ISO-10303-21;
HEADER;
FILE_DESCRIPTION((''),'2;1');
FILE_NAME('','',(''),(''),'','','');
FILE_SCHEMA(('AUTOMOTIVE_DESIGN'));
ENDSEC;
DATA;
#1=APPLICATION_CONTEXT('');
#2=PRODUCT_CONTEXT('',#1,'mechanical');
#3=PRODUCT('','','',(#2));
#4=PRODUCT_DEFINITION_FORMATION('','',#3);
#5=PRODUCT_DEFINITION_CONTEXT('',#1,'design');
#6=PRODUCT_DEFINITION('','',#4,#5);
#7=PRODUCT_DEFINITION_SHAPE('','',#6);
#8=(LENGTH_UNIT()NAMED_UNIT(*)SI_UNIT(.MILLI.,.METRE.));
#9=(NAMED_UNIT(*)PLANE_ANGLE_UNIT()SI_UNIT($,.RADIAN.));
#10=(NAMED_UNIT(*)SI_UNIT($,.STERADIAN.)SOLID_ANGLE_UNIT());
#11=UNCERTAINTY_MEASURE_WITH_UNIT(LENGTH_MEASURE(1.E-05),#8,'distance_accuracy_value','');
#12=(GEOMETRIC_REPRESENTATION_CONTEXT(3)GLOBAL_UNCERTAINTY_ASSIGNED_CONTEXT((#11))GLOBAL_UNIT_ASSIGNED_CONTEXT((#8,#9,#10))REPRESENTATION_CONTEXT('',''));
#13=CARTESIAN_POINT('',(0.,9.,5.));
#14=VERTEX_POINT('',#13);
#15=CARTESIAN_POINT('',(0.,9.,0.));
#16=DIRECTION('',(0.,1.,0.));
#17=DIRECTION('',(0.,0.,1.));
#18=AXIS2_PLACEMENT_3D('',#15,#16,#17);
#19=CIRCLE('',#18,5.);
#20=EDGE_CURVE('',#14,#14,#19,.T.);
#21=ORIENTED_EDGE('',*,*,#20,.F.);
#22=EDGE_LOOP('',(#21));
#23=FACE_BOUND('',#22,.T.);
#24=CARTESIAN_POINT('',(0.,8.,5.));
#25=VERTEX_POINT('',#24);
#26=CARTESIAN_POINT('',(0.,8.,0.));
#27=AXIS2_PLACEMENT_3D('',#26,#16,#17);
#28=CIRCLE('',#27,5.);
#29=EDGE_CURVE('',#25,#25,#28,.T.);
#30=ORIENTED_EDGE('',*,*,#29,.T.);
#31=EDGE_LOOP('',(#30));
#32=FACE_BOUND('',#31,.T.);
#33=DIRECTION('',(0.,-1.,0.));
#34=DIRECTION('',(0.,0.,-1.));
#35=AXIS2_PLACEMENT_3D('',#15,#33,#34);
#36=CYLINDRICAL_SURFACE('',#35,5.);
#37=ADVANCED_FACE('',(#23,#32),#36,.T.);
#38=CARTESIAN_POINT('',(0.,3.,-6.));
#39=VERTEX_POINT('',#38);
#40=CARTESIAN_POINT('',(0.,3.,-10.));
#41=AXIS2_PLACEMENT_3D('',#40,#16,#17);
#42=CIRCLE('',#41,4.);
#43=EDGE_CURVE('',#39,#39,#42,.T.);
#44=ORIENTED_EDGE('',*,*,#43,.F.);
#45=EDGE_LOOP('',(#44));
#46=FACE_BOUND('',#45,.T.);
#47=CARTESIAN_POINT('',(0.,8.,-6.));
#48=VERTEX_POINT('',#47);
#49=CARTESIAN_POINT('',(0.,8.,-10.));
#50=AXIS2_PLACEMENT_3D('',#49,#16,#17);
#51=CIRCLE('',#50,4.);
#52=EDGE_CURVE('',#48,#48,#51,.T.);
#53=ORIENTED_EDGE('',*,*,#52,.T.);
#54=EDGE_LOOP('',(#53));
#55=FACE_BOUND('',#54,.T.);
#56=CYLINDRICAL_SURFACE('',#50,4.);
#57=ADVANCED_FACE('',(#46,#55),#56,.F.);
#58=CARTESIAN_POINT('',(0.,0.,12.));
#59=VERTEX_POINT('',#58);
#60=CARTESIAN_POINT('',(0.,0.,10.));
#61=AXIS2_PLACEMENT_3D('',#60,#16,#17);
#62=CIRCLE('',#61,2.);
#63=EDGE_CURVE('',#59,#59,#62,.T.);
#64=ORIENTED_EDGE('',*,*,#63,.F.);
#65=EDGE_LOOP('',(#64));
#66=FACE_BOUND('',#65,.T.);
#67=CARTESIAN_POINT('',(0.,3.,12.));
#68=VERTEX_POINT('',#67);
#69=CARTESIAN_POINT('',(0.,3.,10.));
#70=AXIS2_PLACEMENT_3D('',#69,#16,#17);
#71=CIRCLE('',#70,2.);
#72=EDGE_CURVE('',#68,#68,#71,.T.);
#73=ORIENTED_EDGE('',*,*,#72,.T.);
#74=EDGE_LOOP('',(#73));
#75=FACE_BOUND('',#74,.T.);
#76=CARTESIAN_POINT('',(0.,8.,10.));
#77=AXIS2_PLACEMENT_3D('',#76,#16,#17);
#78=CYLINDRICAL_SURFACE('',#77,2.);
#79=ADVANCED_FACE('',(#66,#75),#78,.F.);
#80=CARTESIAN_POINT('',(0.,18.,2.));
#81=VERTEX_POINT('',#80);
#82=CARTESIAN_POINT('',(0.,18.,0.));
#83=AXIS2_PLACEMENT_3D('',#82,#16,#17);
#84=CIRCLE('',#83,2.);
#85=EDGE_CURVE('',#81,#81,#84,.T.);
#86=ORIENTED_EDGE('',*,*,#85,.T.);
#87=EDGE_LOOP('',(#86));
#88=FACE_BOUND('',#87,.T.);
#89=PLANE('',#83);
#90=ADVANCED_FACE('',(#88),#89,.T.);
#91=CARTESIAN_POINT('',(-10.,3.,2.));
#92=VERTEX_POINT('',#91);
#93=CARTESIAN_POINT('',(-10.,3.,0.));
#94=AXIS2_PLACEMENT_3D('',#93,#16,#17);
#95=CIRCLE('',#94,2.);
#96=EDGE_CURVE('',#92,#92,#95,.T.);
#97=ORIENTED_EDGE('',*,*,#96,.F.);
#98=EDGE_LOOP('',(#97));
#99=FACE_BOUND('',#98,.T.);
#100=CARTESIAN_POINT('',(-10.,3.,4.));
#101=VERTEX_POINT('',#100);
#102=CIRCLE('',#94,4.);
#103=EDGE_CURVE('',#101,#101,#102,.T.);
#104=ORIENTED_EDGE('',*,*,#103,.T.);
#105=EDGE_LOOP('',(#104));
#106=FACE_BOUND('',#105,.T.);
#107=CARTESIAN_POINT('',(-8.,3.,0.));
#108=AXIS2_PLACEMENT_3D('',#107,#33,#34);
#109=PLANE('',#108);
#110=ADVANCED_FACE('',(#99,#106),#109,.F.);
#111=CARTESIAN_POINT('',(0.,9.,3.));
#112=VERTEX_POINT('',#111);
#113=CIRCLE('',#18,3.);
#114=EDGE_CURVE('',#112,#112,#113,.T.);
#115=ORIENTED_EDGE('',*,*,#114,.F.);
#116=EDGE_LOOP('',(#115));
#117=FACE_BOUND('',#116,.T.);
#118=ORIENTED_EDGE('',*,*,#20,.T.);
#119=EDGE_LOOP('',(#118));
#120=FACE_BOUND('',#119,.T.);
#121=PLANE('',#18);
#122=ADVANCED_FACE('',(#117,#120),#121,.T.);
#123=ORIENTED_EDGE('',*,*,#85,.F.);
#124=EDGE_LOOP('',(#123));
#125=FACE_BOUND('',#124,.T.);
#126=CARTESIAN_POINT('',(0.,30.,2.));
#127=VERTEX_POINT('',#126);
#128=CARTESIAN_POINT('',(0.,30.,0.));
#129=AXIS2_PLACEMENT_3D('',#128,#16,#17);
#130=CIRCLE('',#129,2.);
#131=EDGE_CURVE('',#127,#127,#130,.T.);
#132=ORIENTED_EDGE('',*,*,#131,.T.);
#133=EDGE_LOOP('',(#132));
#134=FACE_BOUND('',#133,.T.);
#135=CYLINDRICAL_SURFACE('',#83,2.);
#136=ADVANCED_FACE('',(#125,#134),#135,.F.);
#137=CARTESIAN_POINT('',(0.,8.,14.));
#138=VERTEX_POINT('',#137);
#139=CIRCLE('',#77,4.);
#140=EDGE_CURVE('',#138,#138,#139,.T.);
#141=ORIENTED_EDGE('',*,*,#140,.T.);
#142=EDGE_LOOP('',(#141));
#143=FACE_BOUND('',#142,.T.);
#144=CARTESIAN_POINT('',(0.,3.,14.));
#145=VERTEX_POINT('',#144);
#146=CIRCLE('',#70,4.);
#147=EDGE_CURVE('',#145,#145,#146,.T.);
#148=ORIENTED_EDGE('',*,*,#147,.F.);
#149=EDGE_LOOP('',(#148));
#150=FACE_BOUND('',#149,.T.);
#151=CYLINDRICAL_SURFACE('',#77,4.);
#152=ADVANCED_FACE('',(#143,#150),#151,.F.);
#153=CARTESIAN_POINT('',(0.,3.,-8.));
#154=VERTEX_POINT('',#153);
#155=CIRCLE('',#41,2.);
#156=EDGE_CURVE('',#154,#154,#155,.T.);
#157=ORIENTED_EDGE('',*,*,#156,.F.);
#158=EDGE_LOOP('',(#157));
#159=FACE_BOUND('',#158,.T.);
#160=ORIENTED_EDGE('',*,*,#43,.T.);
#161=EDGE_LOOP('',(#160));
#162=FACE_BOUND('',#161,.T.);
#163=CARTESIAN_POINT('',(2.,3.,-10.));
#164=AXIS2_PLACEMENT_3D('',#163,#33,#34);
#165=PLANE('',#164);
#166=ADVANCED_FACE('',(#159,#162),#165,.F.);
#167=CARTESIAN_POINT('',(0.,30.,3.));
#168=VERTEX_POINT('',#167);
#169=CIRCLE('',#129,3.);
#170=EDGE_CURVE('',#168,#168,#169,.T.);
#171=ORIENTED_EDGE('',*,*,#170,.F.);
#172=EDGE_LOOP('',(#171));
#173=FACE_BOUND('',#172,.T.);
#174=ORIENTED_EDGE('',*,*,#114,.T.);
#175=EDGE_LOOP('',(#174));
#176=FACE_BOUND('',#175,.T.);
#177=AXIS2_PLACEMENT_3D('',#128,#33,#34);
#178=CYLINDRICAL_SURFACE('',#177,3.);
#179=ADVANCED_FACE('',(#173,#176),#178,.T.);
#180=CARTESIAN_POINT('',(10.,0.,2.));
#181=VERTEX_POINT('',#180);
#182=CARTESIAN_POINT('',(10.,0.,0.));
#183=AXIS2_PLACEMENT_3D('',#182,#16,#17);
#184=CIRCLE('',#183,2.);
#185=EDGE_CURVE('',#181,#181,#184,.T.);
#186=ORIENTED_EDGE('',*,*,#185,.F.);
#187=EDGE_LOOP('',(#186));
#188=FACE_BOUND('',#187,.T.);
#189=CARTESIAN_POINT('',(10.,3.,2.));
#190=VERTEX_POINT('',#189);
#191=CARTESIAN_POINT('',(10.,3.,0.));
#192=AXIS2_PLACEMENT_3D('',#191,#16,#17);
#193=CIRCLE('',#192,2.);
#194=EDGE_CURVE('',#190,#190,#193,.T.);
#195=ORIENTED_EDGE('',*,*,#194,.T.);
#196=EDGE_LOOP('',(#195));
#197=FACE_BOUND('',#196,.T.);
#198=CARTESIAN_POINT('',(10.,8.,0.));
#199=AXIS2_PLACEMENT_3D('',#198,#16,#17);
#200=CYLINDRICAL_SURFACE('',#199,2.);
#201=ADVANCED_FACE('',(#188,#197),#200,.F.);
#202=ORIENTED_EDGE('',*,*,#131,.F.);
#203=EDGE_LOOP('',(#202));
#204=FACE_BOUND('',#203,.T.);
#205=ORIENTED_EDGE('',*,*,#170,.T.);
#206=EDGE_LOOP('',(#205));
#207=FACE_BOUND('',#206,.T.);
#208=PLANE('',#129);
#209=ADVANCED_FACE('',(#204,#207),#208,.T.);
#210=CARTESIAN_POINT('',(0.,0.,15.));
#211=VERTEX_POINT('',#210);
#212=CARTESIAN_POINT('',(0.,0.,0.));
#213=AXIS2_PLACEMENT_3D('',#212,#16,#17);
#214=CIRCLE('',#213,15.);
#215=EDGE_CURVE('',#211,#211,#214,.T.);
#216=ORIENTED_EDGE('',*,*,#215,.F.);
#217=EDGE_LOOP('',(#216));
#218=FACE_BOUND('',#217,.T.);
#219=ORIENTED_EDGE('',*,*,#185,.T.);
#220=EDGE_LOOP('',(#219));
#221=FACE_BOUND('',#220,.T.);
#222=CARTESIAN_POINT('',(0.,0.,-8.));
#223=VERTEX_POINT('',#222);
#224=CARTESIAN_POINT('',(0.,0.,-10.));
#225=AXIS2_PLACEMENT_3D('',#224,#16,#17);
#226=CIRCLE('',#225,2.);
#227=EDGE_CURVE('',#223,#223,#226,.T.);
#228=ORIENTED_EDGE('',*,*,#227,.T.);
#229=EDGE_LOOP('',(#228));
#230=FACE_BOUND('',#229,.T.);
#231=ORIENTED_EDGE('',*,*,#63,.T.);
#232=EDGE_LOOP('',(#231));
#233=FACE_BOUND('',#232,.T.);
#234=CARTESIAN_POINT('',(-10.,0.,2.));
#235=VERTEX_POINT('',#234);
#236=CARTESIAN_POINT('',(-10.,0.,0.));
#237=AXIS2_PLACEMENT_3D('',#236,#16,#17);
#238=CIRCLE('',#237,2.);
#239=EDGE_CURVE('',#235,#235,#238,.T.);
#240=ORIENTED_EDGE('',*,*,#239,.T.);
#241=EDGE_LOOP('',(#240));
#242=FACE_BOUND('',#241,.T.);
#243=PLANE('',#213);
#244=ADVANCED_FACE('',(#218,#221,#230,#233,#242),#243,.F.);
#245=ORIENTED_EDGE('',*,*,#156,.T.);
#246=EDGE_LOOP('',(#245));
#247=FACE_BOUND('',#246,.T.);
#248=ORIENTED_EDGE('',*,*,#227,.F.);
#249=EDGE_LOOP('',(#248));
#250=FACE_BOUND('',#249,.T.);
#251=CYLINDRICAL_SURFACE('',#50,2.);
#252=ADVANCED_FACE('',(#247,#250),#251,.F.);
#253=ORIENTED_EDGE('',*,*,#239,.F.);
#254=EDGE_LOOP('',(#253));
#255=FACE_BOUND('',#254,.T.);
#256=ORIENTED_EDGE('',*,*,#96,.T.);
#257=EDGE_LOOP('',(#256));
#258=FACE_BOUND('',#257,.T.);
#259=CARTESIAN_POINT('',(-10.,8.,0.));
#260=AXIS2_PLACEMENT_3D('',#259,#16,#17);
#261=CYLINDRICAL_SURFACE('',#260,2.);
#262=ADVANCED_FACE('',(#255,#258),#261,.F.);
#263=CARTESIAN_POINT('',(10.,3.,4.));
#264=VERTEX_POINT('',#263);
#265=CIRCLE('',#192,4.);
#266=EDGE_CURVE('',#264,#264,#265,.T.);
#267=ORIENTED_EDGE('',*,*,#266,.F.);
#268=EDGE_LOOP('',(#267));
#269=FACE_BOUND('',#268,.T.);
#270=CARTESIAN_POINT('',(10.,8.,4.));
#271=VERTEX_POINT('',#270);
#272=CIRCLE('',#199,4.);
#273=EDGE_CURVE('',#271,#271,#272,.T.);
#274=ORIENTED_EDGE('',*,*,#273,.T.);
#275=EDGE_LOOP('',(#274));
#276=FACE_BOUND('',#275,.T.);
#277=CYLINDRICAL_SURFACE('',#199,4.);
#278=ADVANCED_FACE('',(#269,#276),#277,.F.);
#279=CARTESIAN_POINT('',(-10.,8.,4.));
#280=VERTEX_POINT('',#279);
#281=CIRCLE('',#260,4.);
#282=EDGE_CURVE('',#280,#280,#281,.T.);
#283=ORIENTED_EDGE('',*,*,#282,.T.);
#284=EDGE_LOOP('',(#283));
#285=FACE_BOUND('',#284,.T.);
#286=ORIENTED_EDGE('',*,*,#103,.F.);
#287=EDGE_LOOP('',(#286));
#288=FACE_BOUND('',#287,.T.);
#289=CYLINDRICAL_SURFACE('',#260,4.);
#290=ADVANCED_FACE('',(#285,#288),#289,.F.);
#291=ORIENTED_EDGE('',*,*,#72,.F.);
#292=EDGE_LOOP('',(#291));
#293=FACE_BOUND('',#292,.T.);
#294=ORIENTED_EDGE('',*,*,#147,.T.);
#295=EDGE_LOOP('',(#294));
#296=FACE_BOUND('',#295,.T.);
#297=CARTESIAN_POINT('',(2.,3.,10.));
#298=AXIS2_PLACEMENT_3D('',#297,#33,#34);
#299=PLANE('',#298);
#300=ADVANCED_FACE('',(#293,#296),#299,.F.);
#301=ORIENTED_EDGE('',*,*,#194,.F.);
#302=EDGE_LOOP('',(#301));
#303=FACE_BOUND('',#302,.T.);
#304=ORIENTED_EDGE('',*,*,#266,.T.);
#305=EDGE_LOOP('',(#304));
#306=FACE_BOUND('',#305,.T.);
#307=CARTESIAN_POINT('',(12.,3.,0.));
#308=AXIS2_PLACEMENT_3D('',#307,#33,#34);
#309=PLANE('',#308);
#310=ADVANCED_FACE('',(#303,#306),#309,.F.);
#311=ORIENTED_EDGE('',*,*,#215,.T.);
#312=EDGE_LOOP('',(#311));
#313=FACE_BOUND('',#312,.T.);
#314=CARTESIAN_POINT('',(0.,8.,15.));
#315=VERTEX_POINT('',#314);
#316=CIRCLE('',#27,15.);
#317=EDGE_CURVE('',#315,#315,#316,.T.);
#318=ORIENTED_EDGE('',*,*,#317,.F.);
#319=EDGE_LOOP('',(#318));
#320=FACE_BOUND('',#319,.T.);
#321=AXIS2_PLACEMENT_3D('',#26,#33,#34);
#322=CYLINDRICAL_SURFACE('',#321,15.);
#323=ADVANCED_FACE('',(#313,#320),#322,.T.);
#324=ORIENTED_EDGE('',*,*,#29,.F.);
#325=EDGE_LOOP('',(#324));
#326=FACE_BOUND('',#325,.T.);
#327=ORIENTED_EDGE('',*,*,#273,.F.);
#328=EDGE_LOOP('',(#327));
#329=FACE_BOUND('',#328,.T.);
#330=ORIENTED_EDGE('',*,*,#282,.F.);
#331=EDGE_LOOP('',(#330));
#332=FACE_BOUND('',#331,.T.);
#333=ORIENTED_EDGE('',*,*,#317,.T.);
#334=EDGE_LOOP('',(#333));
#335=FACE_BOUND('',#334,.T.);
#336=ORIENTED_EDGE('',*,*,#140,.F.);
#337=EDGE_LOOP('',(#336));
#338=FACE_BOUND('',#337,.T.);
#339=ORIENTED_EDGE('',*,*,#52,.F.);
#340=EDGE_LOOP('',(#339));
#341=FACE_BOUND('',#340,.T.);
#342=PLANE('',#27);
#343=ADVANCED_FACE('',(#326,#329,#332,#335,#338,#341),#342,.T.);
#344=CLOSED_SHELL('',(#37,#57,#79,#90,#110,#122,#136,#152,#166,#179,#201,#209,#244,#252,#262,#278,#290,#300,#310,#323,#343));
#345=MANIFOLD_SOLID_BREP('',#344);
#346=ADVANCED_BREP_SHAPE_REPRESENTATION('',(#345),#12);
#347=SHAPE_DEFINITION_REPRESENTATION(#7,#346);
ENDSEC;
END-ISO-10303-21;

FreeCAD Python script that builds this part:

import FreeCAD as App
import Part
import Sketcher

V = App.Vector
Q = App.Units.Quantity

doc = App.newDocument("Part")
body = doc.addObject("PartDesign::Body", "Body")

# Sketch on XZ plane
sketch1 = body.newObject("Sketcher::SketchObject", "Sketch")
sketch1.AttachmentSupport = (doc.getObject("XZ_Plane"), [""])
sketch1.MapMode = "FlatFace"
sketch1.addGeometry(Part.Circle(V(0, 0, 0), V(0, 0, 1), 15), False)
sketch1.addConstraint(Sketcher.Constraint("Coincident", 0, 3, -1, 1))
sketch1.addConstraint(Sketcher.Constraint("Diameter", 0, Q("30 mm")))
pad1 = body.newObject("PartDesign::Pad", "Pad")
pad1.Profile = sketch1
pad1.Length = 8
pad1.Reversed = True

# Sketch on XZ plane
sketch2 = body.newObject("Sketcher::SketchObject", "Sketch001")
sketch2.AttachmentSupport = (doc.getObject("XZ_Plane"), [""])
sketch2.MapMode = "FlatFace"
sketch2.AttachmentOffset = App.Placement(V(0, 0, -8), App.Rotation())
sketch2.addGeometry(Part.Circle(V(0, 0, 0), V(0, 0, 1), 5), False)
sketch2.addConstraint(Sketcher.Constraint("Coincident", 0, 3, -1, 1))
sketch2.addConstraint(Sketcher.Constraint("Diameter", 0, Q("10 mm")))
pad2 = body.newObject("PartDesign::Pad", "Pad001")
pad2.Profile = sketch2
pad2.Length = 1
pad2.Reversed = True

# Sketch on XZ plane
sketch3 = body.newObject("Sketcher::SketchObject", "Sketch002")
sketch3.AttachmentSupport = (doc.getObject("XZ_Plane"), [""])
sketch3.MapMode = "FlatFace"
sketch3.AttachmentOffset = App.Placement(V(0, 0, -9), App.Rotation())
sketch3.addGeometry(Part.Circle(V(0, 0, 0), V(0, 0, 1), 3), False)
sketch3.addConstraint(Sketcher.Constraint("Coincident", 0, 3, -1, 1))
sketch3.addConstraint(Sketcher.Constraint("Diameter", 0, Q("6 mm")))
pad3 = body.newObject("PartDesign::Pad", "Pad002")
pad3.Profile = sketch3
pad3.Length = 21
pad3.Reversed = True

# Sketch on XZ plane
sketch4 = body.newObject("Sketcher::SketchObject", "Sketch003")
sketch4.AttachmentSupport = (doc.getObject("XZ_Plane"), [""])
sketch4.MapMode = "FlatFace"
sketch4.AttachmentOffset = App.Placement(V(0, 0, -8), App.Rotation())
sketch4.addGeometry(Part.Circle(V(-10, 0, 0), V(0, 0, 1), 2), False)
sketch4.addGeometry(Part.Circle(V(0, -10, 0), V(0, 0, 1), 2), False)
sketch4.addGeometry(Part.Circle(V(10, 0, 0), V(0, 0, 1), 2), False)
sketch4.addGeometry(Part.Circle(V(0, 10, 0), V(0, 0, 1), 2), False)
sketch4.addConstraint(Sketcher.Constraint("Equal", 0, 1))
sketch4.addConstraint(Sketcher.Constraint("Equal", 1, 2))
sketch4.addConstraint(Sketcher.Constraint("Equal", 2, 3))
sketch4.addConstraint(Sketcher.Constraint("Symmetric", 0, 3, 2, 3, -1, 1))
sketch4.addConstraint(Sketcher.Constraint("Symmetric", 1, 3, 3, 3, -1, 1))
sketch4.addConstraint(Sketcher.Constraint("PointOnObject", 0, 3, -1))
sketch4.addConstraint(Sketcher.Constraint("PointOnObject", 1, 3, -2))
sketch4.addConstraint(Sketcher.Constraint("Diameter", 0, Q("4 mm")))
sketch4.addConstraint(Sketcher.Constraint("DistanceX", 0, 3, -1, 1, Q("10 mm")))
sketch4.addConstraint(Sketcher.Constraint("DistanceY", 1, 3, -1, 1, Q("10 mm")))
doc.recompute()
hole = body.newObject("PartDesign::Hole", "Hole")
hole.Profile = sketch4
hole.ThreadType = "None"
hole.Diameter = 4
hole.DepthType = "ThroughAll"
hole.HoleCutType = "Counterbore"
hole.HoleCutDiameter = 8
hole.HoleCutDepth = 5
hole.Reversed = True

# Sketch on XZ plane
sketch5 = body.newObject("Sketcher::SketchObject", "Sketch004")
sketch5.AttachmentSupport = (doc.getObject("XZ_Plane"), [""])
sketch5.MapMode = "FlatFace"
sketch5.AttachmentOffset = App.Placement(V(0, 0, -30), App.Rotation())
sketch5.addGeometry(Part.Circle(V(0, 0, 0), V(0, 0, 1), 2), False)
sketch5.addConstraint(Sketcher.Constraint("Coincident", 0, 3, -1, 1))
sketch5.addConstraint(Sketcher.Constraint("Diameter", 0, Q("4 mm")))
pocket1 = body.newObject("PartDesign::Pocket", "Pocket")
pocket1.Profile = sketch5
pocket1.Length = 12
pocket1.Reversed = True

doc.recompute()
